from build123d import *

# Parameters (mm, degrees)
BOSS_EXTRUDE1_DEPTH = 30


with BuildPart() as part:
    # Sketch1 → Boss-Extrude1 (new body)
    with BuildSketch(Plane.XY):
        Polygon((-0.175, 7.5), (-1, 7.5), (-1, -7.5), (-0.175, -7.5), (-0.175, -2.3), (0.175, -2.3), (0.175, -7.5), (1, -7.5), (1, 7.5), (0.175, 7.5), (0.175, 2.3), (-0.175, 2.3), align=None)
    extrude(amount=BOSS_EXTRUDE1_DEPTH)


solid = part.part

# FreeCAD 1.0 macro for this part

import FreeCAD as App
import Part
import Sketcher

V = App.Vector

doc = App.newDocument("Part")
body = doc.addObject("PartDesign::Body", "Body")

# Sketch on XY plane
sketch1 = body.newObject("Sketcher::SketchObject", "Sketch")
sketch1.AttachmentSupport = (doc.getObject("XY_Plane"), [""])
sketch1.MapMode = "FlatFace"
sketch1.addGeometry(Part.LineSegment(V(-0.17, 7.5, 0), V(-1, 7.5, 0)), False)
sketch1.addGeometry(Part.LineSegment(V(-1, 7.5, 0), V(-1, -7.5, 0)), False)
sketch1.addGeometry(Part.LineSegment(V(-1, -7.5, 0), V(-0.17, -7.5, 0)), False)
sketch1.addGeometry(Part.LineSegment(V(-0.17, -7.5, 0), V(-0.17, -2.3, 0)), False)
sketch1.addGeometry(Part.LineSegment(V(-0.17, -2.3, 0), V(0.17, -2.3, 0)), False)
sketch1.addGeometry(Part.LineSegment(V(0.17, -2.3, 0), V(0.17, -7.5, 0)), False)
sketch1.addGeometry(Part.LineSegment(V(0.17, -7.5, 0), V(1, -7.5, 0)), False)
sketch1.addGeometry(Part.LineSegment(V(1, -7.5, 0), V(1, 7.5, 0)), False)
sketch1.addGeometry(Part.LineSegment(V(1, 7.5, 0), V(0.17, 7.5, 0)), False)
sketch1.addGeometry(Part.LineSegment(V(0.17, 7.5, 0), V(0.17, 2.3, 0)), False)
sketch1.addGeometry(Part.LineSegment(V(0.17, 2.3, 0), V(-0.17, 2.3, 0)), False)
sketch1.addGeometry(Part.LineSegment(V(-0.17, 2.3, 0), V(-0.17, 7.5, 0)), False)
sketch1.addConstraint(Sketcher.Constraint("Coincident", 0, 2, 1, 1))
sketch1.addConstraint(Sketcher.Constraint("Coincident", 1, 2, 2, 1))
sketch1.addConstraint(Sketcher.Constraint("Coincident", 2, 2, 3, 1))
sketch1.addConstraint(Sketcher.Constraint("Coincident", 3, 2, 4, 1))
sketch1.addConstraint(Sketcher.Constraint("Coincident", 4, 2, 5, 1))
sketch1.addConstraint(Sketcher.Constraint("Coincident", 5, 2, 6, 1))
sketch1.addConstraint(Sketcher.Constraint("Coincident", 6, 2, 7, 1))
sketch1.addConstraint(Sketcher.Constraint("Coincident", 7, 2, 8, 1))
sketch1.addConstraint(Sketcher.Constraint("Coincident", 8, 2, 9, 1))
sketch1.addConstraint(Sketcher.Constraint("Coincident", 9, 2, 10, 1))
sketch1.addConstraint(Sketcher.Constraint("Coincident", 10, 2, 11, 1))
sketch1.addConstraint(Sketcher.Constraint("Coincident", 11, 2, 0, 1))
sketch1.addConstraint(Sketcher.Constraint("Horizontal", 0))
sketch1.addConstraint(Sketcher.Constraint("Vertical", 1))
sketch1.addConstraint(Sketcher.Constraint("Horizontal", 2))
sketch1.addConstraint(Sketcher.Constraint("Vertical", 3))
sketch1.addConstraint(Sketcher.Constraint("Horizontal", 4))
sketch1.addConstraint(Sketcher.Constraint("Vertical", 5))
sketch1.addConstraint(Sketcher.Constraint("Horizontal", 6))
sketch1.addConstraint(Sketcher.Constraint("Vertical", 7))
sketch1.addConstraint(Sketcher.Constraint("Horizontal", 8))
sketch1.addConstraint(Sketcher.Constraint("Vertical", 9))
sketch1.addConstraint(Sketcher.Constraint("Horizontal", 10))
sketch1.addConstraint(Sketcher.Constraint("Vertical", 11))
sketch1.addConstraint(Sketcher.Constraint("Symmetric", 0, 2, 6, 2, -1, 1))
sketch1.addConstraint(Sketcher.Constraint("Symmetric", 2, 2, 8, 2, -1, 1))
sketch1.addConstraint(Sketcher.Constraint("Symmetric", 4, 2, 10, 2, -1, 1))
sketch1.addConstraint(Sketcher.Constraint("Symmetric", 2, 2, 5, 2, -2))
sketch1.addConstraint(Sketcher.Constraint("DistanceY", 1, 2, 1, 1, 15.0))
sketch1.addConstraint(Sketcher.Constraint("DistanceY", 3, 1, 3, 2, 5.2))
sketch1.addConstraint(Sketcher.Constraint("DistanceX", 0, 2, -1, 1, 1.0))
sketch1.addConstraint(Sketcher.Constraint("DistanceX", 4, 1, 4, 2, 0.35))
pad1 = body.newObject("PartDesign::Pad", "Pad")
pad1.Profile = sketch1
pad1.Length = 30

doc.recompute()
